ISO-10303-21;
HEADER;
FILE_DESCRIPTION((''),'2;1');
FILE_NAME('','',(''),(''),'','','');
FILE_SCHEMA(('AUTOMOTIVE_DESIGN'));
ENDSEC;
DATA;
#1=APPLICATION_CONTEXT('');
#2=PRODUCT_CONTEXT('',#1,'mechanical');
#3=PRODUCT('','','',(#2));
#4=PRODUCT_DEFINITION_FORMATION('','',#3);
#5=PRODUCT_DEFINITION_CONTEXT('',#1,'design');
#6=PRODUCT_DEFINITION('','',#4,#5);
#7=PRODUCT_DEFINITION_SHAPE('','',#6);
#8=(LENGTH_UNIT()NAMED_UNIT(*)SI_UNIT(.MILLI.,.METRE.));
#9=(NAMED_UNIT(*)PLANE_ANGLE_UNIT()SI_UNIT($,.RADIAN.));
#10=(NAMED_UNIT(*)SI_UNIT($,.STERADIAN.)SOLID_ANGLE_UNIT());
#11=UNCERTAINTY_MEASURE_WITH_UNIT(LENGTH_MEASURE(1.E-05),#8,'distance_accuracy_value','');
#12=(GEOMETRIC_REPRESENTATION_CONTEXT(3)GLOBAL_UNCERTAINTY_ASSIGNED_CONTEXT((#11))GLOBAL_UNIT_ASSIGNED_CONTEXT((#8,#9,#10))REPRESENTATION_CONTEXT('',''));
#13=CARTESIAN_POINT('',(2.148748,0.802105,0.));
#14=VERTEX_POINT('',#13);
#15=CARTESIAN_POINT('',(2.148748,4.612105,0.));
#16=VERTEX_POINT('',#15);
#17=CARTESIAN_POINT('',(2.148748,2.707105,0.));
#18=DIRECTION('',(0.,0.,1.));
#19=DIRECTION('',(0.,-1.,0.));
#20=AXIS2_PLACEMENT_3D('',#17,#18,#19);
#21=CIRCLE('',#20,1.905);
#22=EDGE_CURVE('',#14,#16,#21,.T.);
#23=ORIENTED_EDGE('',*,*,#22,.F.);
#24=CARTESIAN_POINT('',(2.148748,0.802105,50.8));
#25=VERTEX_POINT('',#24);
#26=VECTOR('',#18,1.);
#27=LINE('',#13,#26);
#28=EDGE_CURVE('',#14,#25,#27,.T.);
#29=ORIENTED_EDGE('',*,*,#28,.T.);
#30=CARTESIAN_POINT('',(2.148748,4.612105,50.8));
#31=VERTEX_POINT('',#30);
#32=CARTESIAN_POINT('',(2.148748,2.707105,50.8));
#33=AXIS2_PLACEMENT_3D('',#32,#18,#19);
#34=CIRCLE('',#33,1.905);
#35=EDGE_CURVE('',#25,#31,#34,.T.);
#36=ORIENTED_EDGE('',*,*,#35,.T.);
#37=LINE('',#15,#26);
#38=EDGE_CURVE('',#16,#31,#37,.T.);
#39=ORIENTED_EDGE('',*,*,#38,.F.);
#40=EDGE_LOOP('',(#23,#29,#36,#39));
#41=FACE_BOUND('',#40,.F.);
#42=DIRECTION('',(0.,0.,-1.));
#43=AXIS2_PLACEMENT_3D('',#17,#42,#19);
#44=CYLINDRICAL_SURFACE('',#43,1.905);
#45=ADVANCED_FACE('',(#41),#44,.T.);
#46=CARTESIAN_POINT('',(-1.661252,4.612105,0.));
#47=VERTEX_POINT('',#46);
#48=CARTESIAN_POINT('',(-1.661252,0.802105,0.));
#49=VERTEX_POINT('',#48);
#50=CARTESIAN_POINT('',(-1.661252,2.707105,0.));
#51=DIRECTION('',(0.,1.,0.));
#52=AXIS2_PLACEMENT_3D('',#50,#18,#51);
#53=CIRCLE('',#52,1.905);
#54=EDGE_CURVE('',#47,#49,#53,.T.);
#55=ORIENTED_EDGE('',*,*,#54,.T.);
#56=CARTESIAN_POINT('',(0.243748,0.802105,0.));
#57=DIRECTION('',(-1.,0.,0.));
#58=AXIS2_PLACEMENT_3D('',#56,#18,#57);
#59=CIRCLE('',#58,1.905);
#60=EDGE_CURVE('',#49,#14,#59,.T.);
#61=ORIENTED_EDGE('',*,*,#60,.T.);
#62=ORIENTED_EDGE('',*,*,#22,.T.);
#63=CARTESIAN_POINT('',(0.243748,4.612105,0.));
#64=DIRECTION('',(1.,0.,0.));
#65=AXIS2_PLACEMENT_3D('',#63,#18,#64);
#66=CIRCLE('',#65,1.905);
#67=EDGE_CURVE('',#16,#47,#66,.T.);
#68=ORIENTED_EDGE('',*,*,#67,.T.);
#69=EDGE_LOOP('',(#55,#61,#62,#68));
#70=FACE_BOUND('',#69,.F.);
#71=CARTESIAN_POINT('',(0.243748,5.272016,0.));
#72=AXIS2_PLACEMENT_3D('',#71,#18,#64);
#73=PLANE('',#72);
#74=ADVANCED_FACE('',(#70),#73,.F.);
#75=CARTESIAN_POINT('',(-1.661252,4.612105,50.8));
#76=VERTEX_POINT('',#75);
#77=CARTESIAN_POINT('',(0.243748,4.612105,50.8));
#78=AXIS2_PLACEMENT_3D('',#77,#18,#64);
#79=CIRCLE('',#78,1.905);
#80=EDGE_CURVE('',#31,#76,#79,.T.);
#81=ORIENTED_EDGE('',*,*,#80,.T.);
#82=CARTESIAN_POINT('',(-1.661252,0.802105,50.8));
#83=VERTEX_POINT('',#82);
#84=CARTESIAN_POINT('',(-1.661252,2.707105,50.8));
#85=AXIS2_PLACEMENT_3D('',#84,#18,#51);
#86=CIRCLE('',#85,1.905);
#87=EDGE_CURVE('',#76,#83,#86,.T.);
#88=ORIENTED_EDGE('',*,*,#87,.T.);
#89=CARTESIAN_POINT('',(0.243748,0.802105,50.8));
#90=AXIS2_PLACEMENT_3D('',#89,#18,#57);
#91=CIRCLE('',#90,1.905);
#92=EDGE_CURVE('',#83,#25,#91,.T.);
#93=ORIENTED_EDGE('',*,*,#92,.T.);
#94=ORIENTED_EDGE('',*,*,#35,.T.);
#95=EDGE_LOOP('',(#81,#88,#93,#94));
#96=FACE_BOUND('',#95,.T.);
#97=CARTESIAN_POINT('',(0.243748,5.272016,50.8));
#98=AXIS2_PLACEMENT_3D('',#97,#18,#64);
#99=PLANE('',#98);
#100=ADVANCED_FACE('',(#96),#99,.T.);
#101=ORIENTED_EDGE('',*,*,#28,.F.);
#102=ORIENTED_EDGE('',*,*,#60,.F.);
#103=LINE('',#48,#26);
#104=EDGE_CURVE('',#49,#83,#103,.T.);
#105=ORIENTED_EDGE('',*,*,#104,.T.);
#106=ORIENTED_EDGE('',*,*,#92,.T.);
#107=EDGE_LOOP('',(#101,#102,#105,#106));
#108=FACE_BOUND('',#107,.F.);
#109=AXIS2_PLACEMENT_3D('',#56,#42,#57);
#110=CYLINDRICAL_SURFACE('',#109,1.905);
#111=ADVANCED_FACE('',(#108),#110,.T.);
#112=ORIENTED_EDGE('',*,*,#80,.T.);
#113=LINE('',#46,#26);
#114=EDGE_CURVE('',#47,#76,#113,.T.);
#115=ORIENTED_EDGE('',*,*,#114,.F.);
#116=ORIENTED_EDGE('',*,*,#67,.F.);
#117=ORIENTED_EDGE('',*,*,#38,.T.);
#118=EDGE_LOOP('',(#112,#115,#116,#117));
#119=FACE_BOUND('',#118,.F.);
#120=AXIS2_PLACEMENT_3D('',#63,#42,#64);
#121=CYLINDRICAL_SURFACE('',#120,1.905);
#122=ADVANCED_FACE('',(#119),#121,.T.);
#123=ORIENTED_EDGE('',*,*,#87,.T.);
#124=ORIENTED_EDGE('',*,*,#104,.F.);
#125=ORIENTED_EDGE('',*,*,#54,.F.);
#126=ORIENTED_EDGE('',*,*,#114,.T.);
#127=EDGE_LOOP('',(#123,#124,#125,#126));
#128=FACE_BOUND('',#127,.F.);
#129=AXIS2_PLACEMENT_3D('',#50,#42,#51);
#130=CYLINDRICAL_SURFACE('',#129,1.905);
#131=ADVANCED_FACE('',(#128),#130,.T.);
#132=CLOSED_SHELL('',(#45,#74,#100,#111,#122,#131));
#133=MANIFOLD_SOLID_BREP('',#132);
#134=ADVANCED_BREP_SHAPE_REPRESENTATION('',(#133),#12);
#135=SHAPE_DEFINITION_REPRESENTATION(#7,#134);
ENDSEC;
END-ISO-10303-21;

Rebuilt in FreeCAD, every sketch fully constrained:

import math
import FreeCAD as App
import Part
import Sketcher

V = App.Vector
Q = App.Units.Quantity

doc = App.newDocument("Part")
body = doc.addObject("PartDesign::Body", "Body")

sketch1 = body.newObject("Sketcher::SketchObject", "Sketch")
sketch1.AttachmentSupport = (doc.getObject("XY_Plane"), [""])
sketch1.MapMode = "FlatFace"
sketch1.addGeometry(Part.ArcOfCircle(Part.Circle(V(0.243748, 4.612105, 0), V(0, 0, 1), 1.905), math.radians(0), math.radians(180)), False)
sketch1.addGeometry(Part.ArcOfCircle(Part.Circle(V(-1.661252, 2.707105, 0), V(0, 0, 1), 1.905), math.radians(90), math.radians(270)), False)
sketch1.addGeometry(Part.ArcOfCircle(Part.Circle(V(0.243748, 0.802105, 0), V(0, 0, 1), 1.905), math.radians(180), math.radians(360)), False)
sketch1.addGeometry(Part.ArcOfCircle(Part.Circle(V(2.148748, 2.707105, 0), V(0, 0, 1), 1.905), math.radians(-90), math.radians(90)), False)
sketch1.addConstraint(Sketcher.Constraint("Coincident", 0, 2, 1, 1))
sketch1.addConstraint(Sketcher.Constraint("Coincident", 1, 2, 2, 1))
sketch1.addConstraint(Sketcher.Constraint("Coincident", 2, 2, 3, 1))
sketch1.addConstraint(Sketcher.Constraint("Coincident", 3, 2, 0, 1))
sketch1.addConstraint(Sketcher.Constraint("Equal", 0, 1))
sketch1.addConstraint(Sketcher.Constraint("Equal", 1, 2))
sketch1.addConstraint(Sketcher.Constraint("Equal", 2, 3))
sketch1.addConstraint(Sketcher.Constraint("Horizontal", 1, 3, 3, 3))
sketch1.addConstraint(Sketcher.Constraint("Horizontal", 2, 3, 1, 2))
sketch1.addConstraint(Sketcher.Constraint("Vertical", 0, 3, 2, 3))
sketch1.addConstraint(Sketcher.Constraint("Vertical", 1, 3, 0, 2))
sketch1.addConstraint(Sketcher.Constraint("Vertical", 3, 3, 2, 2))
sketch1.addConstraint(Sketcher.Constraint("Radius", 0, Q("0.075 in")))
sketch1.addConstraint(Sketcher.Constraint("DistanceY", 2, 3, 0, 3, Q("0.15 in")))
sketch1.addConstraint(Sketcher.Constraint("DistanceX", 1, 2, -1, 1, Q("1.661252 mm")))
sketch1.addConstraint(Sketcher.Constraint("DistanceY", -1, 1, 0, 3, Q("4.612105 mm")))
pad1 = body.newObject("PartDesign::Pad", "Pad")
pad1.Profile = sketch1
pad1.Length = Q("2 in")

doc.recompute()
